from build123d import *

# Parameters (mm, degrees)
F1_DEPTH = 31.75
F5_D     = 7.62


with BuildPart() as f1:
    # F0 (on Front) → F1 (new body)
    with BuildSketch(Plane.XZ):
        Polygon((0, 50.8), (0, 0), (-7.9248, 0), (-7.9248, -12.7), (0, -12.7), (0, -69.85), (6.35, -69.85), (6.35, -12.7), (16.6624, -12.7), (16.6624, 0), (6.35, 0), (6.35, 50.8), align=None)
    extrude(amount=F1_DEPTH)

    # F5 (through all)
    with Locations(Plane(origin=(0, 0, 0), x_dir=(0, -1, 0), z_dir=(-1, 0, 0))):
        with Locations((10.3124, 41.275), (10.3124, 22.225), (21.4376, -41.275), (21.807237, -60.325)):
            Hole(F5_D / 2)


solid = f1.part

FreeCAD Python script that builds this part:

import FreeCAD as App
import Part
import Sketcher
from FreeCAD import Vector
Q = App.Units.Quantity


def add_polygon(sketch, points):
    """Adds a closed chain of lines whose ends are joined by coincident constraints."""
    first, n = sketch.GeometryCount, len(points)
    for a, b in zip(points, points[1:] + points[:1]):
        sketch.addGeometry(Part.LineSegment(App.Vector(*a, 0), App.Vector(*b, 0)), False)
    for i in range(n):
        sketch.addConstraint(Sketcher.Constraint("Coincident", first + i, 2, first + (i + 1) % n, 1))

doc = App.newDocument("Part")
body = doc.addObject("PartDesign::Body", "Body")

# Sketch on XZ plane
sketch1 = body.newObject("Sketcher::SketchObject", "Sketch")
sketch1.AttachmentSupport = (doc.getObject("XZ_Plane"), [""])
sketch1.MapMode = "FlatFace"
add_polygon(sketch1, [(0, 51), (0, 0), (-8, 0), (-8, -13), (0, -13), (0, -70), (6, -70), (6, -13), (17, -13), (17, 0), (6, 0), (6, 51)])  # lines 0-11
sketch1.addConstraint([
    Sketcher.Constraint("Vertical", 0),
    Sketcher.Constraint("Horizontal", 1),
    Sketcher.Constraint("Vertical", 2),
    Sketcher.Constraint("Horizontal", 3),
    Sketcher.Constraint("Vertical", 4),
    Sketcher.Constraint("Horizontal", 5),
    Sketcher.Constraint("Vertical", 6),
    Sketcher.Constraint("Horizontal", 7),
    Sketcher.Constraint("Vertical", 8),
    Sketcher.Constraint("Horizontal", 9),
    Sketcher.Constraint("Vertical", 10),
    Sketcher.Constraint("Horizontal", 11),
    Sketcher.Constraint("Coincident", 0, 2, -1, 1),
    Sketcher.Constraint("PointOnObject", 3, 2, -2),
    Sketcher.Constraint("PointOnObject", 8, 2, -1),
    Sketcher.Constraint("Horizontal", 3, 2, 6, 2),
    Sketcher.Constraint("Vertical", 6, 2, 9, 2),
    Sketcher.Constraint("DistanceY", 0, 2, 0, 1, Q("2 in")),
    Sketcher.Constraint("DistanceY", 2, 2, 2, 1, Q("0.5 in")),
    Sketcher.Constraint("DistanceX", 5, 1, 5, 2, Q("0.25 in")),
    Sketcher.Constraint("DistanceY", 4, 2, 4, 1, Q("2.25 in")),
    Sketcher.Constraint("DistanceX", 1, 2, 1, 1, Q("0.312 in")),
    Sketcher.Constraint("DistanceX", 7, 1, 7, 2, Q("0.406 in")),
])
pad1 = body.newObject("PartDesign::Pad", "Pad")
pad1.Profile = sketch1
pad1.Length = Q("1.25 in")

# Sketch on YZ plane
sketch2 = body.newObject("Sketcher::SketchObject", "Sketch001")
sketch2.AttachmentSupport = (doc.getObject("YZ_Plane"), [""])
sketch2.MapMode = "FlatFace"
sketch2.addGeometry([
    Part.Circle(Vector(-10.3, 41.3, 0), Vector(0, 0, 1), 3.8),
    Part.Circle(Vector(-10.3, 22.2, 0), Vector(0, 0, 1), 3.8),
    Part.Circle(Vector(-21.4, -41.3, 0), Vector(0, 0, 1), 3.8),
    Part.Circle(Vector(-21.8, -60.3, 0), Vector(0, 0, 1), 3.8),
], False)
sketch2.addConstraint([
    Sketcher.Constraint("Equal", 0, 1),
    Sketcher.Constraint("Equal", 1, 2),
    Sketcher.Constraint("Equal", 2, 3),
    Sketcher.Constraint("Vertical", 0, 3, 1, 3),
    Sketcher.Constraint("Diameter", 0, Q("0.3 in")),
    Sketcher.Constraint("DistanceY", 3, 3, 0, 3, Q("4 in")),
    Sketcher.Constraint("DistanceY", 2, 3, 1, 3, Q("2.5 in")),
    Sketcher.Constraint("DistanceY", 1, 3, 0, 3, Q("0.75 in")),
    Sketcher.Constraint("DistanceX", 0, 3, -1, 1, Q("0.406 in")),
    Sketcher.Constraint("DistanceY", -1, 1, 0, 3, Q("1.625 in")),
    Sketcher.Constraint("DistanceX", 2, 3, -1, 1, Q("0.844 in")),
    Sketcher.Constraint("DistanceX", 3, 3, -1, 1, 21.807237),
])
doc.recompute()
hole = body.newObject("PartDesign::Hole", "Hole")
hole.Profile = sketch2
hole.ThreadType = "None"
hole.Diameter = Q("0.3 in")
hole.DepthType = "ThroughAll"
hole.Reversed = True

doc.recompute()
